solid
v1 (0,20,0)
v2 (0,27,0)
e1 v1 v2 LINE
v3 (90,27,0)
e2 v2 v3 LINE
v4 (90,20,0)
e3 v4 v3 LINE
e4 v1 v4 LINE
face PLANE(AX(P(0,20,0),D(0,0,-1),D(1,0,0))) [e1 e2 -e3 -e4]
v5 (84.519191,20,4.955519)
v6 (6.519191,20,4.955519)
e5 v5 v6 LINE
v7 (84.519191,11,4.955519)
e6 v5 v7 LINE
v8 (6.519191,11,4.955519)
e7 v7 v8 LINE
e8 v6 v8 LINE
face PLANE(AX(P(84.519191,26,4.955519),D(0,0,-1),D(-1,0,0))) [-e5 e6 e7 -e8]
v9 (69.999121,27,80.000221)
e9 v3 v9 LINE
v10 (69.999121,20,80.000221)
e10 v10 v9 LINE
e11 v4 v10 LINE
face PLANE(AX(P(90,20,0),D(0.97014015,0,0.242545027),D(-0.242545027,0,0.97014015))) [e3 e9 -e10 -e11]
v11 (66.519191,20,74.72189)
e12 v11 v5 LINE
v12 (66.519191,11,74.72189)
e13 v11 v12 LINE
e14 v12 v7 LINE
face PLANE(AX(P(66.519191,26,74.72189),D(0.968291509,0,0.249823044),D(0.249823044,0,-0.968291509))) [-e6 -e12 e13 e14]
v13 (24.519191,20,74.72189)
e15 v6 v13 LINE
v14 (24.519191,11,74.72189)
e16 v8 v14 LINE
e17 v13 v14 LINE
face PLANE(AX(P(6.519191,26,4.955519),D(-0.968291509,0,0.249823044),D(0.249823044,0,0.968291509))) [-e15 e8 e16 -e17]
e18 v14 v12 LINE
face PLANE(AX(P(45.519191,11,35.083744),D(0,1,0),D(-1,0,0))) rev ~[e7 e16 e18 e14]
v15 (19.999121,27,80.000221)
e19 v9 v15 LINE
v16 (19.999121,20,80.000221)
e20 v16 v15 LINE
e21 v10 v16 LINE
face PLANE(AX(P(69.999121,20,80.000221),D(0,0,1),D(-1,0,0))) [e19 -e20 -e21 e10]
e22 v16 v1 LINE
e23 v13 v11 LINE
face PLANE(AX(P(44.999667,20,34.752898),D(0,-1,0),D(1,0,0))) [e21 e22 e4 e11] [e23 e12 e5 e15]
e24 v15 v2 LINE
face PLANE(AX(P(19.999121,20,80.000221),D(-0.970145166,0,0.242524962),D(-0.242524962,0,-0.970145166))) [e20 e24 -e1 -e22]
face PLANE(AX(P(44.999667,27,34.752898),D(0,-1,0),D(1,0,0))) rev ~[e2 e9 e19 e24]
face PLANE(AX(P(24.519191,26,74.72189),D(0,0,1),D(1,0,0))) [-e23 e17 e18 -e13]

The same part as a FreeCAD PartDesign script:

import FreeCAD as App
import Part
import Sketcher

doc = App.newDocument("Part")
body = doc.addObject("PartDesign::Body", "Body")

sketch1 = doc.addObject("Sketcher::SketchObject", "Sketch")
body.addObject(sketch1)
sketch1.AttachmentSupport = (doc.XZ_Plane, [""])
sketch1.MapMode = "FlatFace"
sketch1.AttachmentOffset = App.Placement(App.Vector(0, 0, -20), App.Rotation())
sketch1.addGeometry(Part.LineSegment(App.Vector(70, 80, 0), App.Vector(90, 0, 0)), False)
sketch1.addGeometry(Part.LineSegment(App.Vector(90, 0, 0), App.Vector(0, 0, 0)), False)
sketch1.addGeometry(Part.LineSegment(App.Vector(0, 0, 0), App.Vector(20, 80, 0)), False)
sketch1.addGeometry(Part.LineSegment(App.Vector(20, 80, 0), App.Vector(70, 80, 0)), False)
sketch1.addConstraint(Sketcher.Constraint("Coincident", 0, 2, 1, 1))
sketch1.addConstraint(Sketcher.Constraint("Coincident", 1, 2, 2, 1))
sketch1.addConstraint(Sketcher.Constraint("Coincident", 2, 2, 3, 1))
sketch1.addConstraint(Sketcher.Constraint("Coincident", 3, 2, 0, 1))
sketch1.addConstraint(Sketcher.Constraint("Horizontal", 1))
sketch1.addConstraint(Sketcher.Constraint("Horizontal", 3))
sketch1.addConstraint(Sketcher.Constraint("Coincident", 1, 2, -1, 1))
sketch1.addConstraint(Sketcher.Constraint("DistanceX", 1, 2, 1, 1, 90.0))
sketch1.addConstraint(Sketcher.Constraint("DistanceX", 3, 1, 3, 2, 50.0))
sketch1.addConstraint(Sketcher.Constraint("Distance", 0, 82.46254))
sketch1.addConstraint(Sketcher.Constraint("DistanceX", -1, 1, 2, 2, 19.999121))
pad1 = doc.addObject("PartDesign::Pad", "Pad")
body.addObject(pad1)
pad1.Profile = sketch1
pad1.Length = 7
pad1.Reversed = True
body2 = doc.addObject("PartDesign::Body", "Body001")

sketch2 = doc.addObject("Sketcher::SketchObject", "Sketch001")
body2.addObject(sketch2)
sketch2.AttachmentSupport = (doc.getObject("XZ_Plane001"), [""])
sketch2.MapMode = "FlatFace"
sketch2.addGeometry(Part.LineSegment(App.Vector(25, 75, 0), App.Vector(7, 5, 0)), False)
sketch2.addGeometry(Part.LineSegment(App.Vector(7, 5, 0), App.Vector(85, 5, 0)), False)
sketch2.addGeometry(Part.LineSegment(App.Vector(85, 5, 0), App.Vector(67, 75, 0)), False)
sketch2.addGeometry(Part.LineSegment(App.Vector(67, 75, 0), App.Vector(25, 75, 0)), False)
sketch2.addConstraint(Sketcher.Constraint("Coincident", 0, 2, 1, 1))
sketch2.addConstraint(Sketcher.Constraint("Coincident", 1, 2, 2, 1))
sketch2.addConstraint(Sketcher.Constraint("Coincident", 2, 2, 3, 1))
sketch2.addConstraint(Sketcher.Constraint("Coincident", 3, 2, 0, 1))
sketch2.addConstraint(Sketcher.Constraint("Horizontal", 1))
sketch2.addConstraint(Sketcher.Constraint("Horizontal", 3))
sketch2.addConstraint(Sketcher.Constraint("Equal", 0, 2))
sketch2.addConstraint(Sketcher.Constraint("DistanceX", 1, 1, 1, 2, 78.0))
sketch2.addConstraint(Sketcher.Constraint("DistanceX", 3, 2, 3, 1, 42.0))
sketch2.addConstraint(Sketcher.Constraint("Distance", 0, 72.050999))
sketch2.addConstraint(Sketcher.Constraint("DistanceX", -1, 1, 0, 2, 6.519191))
sketch2.addConstraint(Sketcher.Constraint("DistanceY", -1, 1, 0, 2, 4.955519))
pad2 = doc.addObject("PartDesign::Pad", "Pad001")
body2.addObject(pad2)
pad2.Profile = sketch2
pad2.Length = 15
body3 = doc.addObject("PartDesign::Body", "Body002")
doc.recompute()

body2.Placement = App.Placement(App.Vector(0, 26, 0), App.Rotation(App.Vector(0, 0, 1), 0))
boolean = doc.addObject("PartDesign::Boolean", "Boolean")
body3.addObject(boolean)
boolean.Type = "Fuse"
boolean.addObjects([body2])
doc.recompute()

boolean2 = doc.addObject("PartDesign::Boolean", "Boolean001")
body3.addObject(boolean2)
boolean2.Type = "Fuse"
boolean2.addObjects([body])

doc.recompute()
